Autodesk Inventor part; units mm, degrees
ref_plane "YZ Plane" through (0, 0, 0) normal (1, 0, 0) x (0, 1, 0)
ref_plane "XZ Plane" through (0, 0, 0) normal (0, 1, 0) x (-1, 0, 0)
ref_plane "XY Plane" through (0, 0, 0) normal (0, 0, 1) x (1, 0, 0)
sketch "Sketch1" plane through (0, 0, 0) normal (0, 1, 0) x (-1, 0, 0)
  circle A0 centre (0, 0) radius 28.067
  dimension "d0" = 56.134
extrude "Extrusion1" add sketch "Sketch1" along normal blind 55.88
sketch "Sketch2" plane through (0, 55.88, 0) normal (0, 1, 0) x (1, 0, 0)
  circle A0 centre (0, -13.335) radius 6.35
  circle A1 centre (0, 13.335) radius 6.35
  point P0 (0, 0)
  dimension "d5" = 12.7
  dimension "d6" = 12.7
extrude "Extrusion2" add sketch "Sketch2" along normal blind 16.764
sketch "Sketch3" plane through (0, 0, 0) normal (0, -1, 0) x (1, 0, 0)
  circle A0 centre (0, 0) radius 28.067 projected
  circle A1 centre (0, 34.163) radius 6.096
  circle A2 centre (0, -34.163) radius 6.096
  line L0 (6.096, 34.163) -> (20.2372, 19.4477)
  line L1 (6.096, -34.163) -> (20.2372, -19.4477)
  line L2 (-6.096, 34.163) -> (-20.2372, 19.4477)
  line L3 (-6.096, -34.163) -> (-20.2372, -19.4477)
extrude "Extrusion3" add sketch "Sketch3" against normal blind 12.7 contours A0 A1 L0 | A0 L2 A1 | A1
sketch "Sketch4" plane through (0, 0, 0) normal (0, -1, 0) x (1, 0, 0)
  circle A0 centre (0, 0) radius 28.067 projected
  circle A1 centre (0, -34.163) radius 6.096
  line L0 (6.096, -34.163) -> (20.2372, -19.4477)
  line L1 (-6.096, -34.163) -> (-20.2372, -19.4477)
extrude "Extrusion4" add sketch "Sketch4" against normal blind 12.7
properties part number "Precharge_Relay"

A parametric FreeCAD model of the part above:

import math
import FreeCAD as App
import Part
import Sketcher

V = App.Vector
Q = App.Units.Quantity

doc = App.newDocument("Part")
body = doc.addObject("PartDesign::Body", "Body")

sketch1 = body.newObject("Sketcher::SketchObject", "Sketch")
sketch1.AttachmentSupport = (doc.getObject("XZ_Plane"), [""])
sketch1.MapMode = "FlatFace"
sketch1.addGeometry(Part.Circle(V(0, 0, 0), V(0, 0, 1), 28), False)
sketch1.addConstraint([
    Sketcher.Constraint("Coincident", 0, 3, -1, 1),
    Sketcher.Constraint("Diameter", 0, Q("2.21 in")),
])
pad1 = body.newObject("PartDesign::Pad", "Pad")
pad1.Profile = sketch1
pad1.Length = Q("2.2 in")
pad1.Reversed = True

sketch2 = body.newObject("Sketcher::SketchObject", "Sketch001")
sketch2.AttachmentSupport = (doc.getObject("XZ_Plane"), [""])
sketch2.MapMode = "FlatFace"
sketch2.AttachmentOffset = App.Placement(V(0, 0, -2.2 * 25.4), App.Rotation())
sketch2.addGeometry([
    Part.Circle(V(0, 13, 0), V(0, 0, 1), 6),
    Part.Circle(V(0, -13, 0), V(0, 0, 1), 6),
], False)
sketch2.addConstraint([
    Sketcher.Constraint("Equal", 0, 1),
    Sketcher.Constraint("Symmetric", 0, 3, 1, 3, -1, 1),
    Sketcher.Constraint("PointOnObject", 0, 3, -2),
    Sketcher.Constraint("Diameter", 0, Q("0.5 in")),
    Sketcher.Constraint("DistanceY", 1, 3, 0, 3, Q("1.05 in")),
])
pad2 = body.newObject("PartDesign::Pad", "Pad001")
pad2.Profile = sketch2
pad2.Length = Q("0.66 in")
pad2.Reversed = True

sketch3 = body.newObject("Sketcher::SketchObject", "Sketch002")
sketch3.AttachmentSupport = (doc.getObject("XZ_Plane"), [""])
sketch3.MapMode = "FlatFace"
sketch3.addGeometry([
    Part.LineSegment(V(20, 19, 0), V(6, 34, 0)),
    Part.ArcOfCircle(Part.Circle(V(0, 34, 0), V(0, 0, 1), 6), math.radians(0), math.radians(180)),
    Part.LineSegment(V(-6, 34, 0), V(-20, 19, 0)),
    Part.ArcOfCircle(Part.Circle(V(0, 0, 0), V(0, 0, 1), 28), math.radians(44), math.radians(136)),
], False)
sketch3.addConstraint([
    Sketcher.Constraint("Coincident", 0, 2, 1, 1),
    Sketcher.Constraint("Coincident", 1, 2, 2, 1),
    Sketcher.Constraint("Tangent", 2, 2, 3, 2),
    Sketcher.Constraint("Tangent", 3, 1, 0, 1),
    Sketcher.Constraint("Coincident", 3, 3, -1, 1),
    Sketcher.Constraint("Symmetric", 0, 2, 1, 2, -2),
    Sketcher.Constraint("Horizontal", 1, 3, 0, 2),
    Sketcher.Constraint("Radius", 1, Q("0.24 in")),
    Sketcher.Constraint("Radius", 3, Q("1.105 in")),
    Sketcher.Constraint("Angle", 0, Q("133.8603 deg")),
])
pad3 = body.newObject("PartDesign::Pad", "Pad002")
pad3.Profile = sketch3
pad3.Length = Q("0.5 in")
pad3.Reversed = True

sketch4 = body.newObject("Sketcher::SketchObject", "Sketch003")
sketch4.AttachmentSupport = (doc.getObject("XZ_Plane"), [""])
sketch4.MapMode = "FlatFace"
sketch4.addGeometry([
    Part.ArcOfCircle(Part.Circle(V(0, 0, 0), V(0, 0, 1), 28), math.radians(-44), math.radians(224)),
    Part.LineSegment(V(-20, -19, 0), V(-6, -34, 0)),
    Part.ArcOfCircle(Part.Circle(V(0, -34, 0), V(0, 0, 1), 6), math.radians(180), math.radians(360)),
    Part.LineSegment(V(6, -34, 0), V(20, -19, 0)),
], False)
sketch4.addConstraint([
    Sketcher.Constraint("Tangent", 0, 2, 1, 1),
    Sketcher.Constraint("Coincident", 1, 2, 2, 1),
    Sketcher.Constraint("Coincident", 2, 2, 3, 1),
    Sketcher.Constraint("Tangent", 3, 2, 0, 1),
    Sketcher.Constraint("Coincident", 0, 3, -1, 1),
    Sketcher.Constraint("Symmetric", 1, 2, 2, 2, -2),
    Sketcher.Constraint("Horizontal", 2, 3, 1, 2),
    Sketcher.Constraint("Radius", 2, Q("0.24 in")),
    Sketcher.Constraint("Radius", 0, Q("1.105 in")),
    Sketcher.Constraint("Angle", 1, Q("-46.1397 deg")),
])
pad4 = body.newObject("PartDesign::Pad", "Pad003")
pad4.Profile = sketch4
pad4.Length = Q("0.5 in")
pad4.Reversed = True

doc.recompute()
